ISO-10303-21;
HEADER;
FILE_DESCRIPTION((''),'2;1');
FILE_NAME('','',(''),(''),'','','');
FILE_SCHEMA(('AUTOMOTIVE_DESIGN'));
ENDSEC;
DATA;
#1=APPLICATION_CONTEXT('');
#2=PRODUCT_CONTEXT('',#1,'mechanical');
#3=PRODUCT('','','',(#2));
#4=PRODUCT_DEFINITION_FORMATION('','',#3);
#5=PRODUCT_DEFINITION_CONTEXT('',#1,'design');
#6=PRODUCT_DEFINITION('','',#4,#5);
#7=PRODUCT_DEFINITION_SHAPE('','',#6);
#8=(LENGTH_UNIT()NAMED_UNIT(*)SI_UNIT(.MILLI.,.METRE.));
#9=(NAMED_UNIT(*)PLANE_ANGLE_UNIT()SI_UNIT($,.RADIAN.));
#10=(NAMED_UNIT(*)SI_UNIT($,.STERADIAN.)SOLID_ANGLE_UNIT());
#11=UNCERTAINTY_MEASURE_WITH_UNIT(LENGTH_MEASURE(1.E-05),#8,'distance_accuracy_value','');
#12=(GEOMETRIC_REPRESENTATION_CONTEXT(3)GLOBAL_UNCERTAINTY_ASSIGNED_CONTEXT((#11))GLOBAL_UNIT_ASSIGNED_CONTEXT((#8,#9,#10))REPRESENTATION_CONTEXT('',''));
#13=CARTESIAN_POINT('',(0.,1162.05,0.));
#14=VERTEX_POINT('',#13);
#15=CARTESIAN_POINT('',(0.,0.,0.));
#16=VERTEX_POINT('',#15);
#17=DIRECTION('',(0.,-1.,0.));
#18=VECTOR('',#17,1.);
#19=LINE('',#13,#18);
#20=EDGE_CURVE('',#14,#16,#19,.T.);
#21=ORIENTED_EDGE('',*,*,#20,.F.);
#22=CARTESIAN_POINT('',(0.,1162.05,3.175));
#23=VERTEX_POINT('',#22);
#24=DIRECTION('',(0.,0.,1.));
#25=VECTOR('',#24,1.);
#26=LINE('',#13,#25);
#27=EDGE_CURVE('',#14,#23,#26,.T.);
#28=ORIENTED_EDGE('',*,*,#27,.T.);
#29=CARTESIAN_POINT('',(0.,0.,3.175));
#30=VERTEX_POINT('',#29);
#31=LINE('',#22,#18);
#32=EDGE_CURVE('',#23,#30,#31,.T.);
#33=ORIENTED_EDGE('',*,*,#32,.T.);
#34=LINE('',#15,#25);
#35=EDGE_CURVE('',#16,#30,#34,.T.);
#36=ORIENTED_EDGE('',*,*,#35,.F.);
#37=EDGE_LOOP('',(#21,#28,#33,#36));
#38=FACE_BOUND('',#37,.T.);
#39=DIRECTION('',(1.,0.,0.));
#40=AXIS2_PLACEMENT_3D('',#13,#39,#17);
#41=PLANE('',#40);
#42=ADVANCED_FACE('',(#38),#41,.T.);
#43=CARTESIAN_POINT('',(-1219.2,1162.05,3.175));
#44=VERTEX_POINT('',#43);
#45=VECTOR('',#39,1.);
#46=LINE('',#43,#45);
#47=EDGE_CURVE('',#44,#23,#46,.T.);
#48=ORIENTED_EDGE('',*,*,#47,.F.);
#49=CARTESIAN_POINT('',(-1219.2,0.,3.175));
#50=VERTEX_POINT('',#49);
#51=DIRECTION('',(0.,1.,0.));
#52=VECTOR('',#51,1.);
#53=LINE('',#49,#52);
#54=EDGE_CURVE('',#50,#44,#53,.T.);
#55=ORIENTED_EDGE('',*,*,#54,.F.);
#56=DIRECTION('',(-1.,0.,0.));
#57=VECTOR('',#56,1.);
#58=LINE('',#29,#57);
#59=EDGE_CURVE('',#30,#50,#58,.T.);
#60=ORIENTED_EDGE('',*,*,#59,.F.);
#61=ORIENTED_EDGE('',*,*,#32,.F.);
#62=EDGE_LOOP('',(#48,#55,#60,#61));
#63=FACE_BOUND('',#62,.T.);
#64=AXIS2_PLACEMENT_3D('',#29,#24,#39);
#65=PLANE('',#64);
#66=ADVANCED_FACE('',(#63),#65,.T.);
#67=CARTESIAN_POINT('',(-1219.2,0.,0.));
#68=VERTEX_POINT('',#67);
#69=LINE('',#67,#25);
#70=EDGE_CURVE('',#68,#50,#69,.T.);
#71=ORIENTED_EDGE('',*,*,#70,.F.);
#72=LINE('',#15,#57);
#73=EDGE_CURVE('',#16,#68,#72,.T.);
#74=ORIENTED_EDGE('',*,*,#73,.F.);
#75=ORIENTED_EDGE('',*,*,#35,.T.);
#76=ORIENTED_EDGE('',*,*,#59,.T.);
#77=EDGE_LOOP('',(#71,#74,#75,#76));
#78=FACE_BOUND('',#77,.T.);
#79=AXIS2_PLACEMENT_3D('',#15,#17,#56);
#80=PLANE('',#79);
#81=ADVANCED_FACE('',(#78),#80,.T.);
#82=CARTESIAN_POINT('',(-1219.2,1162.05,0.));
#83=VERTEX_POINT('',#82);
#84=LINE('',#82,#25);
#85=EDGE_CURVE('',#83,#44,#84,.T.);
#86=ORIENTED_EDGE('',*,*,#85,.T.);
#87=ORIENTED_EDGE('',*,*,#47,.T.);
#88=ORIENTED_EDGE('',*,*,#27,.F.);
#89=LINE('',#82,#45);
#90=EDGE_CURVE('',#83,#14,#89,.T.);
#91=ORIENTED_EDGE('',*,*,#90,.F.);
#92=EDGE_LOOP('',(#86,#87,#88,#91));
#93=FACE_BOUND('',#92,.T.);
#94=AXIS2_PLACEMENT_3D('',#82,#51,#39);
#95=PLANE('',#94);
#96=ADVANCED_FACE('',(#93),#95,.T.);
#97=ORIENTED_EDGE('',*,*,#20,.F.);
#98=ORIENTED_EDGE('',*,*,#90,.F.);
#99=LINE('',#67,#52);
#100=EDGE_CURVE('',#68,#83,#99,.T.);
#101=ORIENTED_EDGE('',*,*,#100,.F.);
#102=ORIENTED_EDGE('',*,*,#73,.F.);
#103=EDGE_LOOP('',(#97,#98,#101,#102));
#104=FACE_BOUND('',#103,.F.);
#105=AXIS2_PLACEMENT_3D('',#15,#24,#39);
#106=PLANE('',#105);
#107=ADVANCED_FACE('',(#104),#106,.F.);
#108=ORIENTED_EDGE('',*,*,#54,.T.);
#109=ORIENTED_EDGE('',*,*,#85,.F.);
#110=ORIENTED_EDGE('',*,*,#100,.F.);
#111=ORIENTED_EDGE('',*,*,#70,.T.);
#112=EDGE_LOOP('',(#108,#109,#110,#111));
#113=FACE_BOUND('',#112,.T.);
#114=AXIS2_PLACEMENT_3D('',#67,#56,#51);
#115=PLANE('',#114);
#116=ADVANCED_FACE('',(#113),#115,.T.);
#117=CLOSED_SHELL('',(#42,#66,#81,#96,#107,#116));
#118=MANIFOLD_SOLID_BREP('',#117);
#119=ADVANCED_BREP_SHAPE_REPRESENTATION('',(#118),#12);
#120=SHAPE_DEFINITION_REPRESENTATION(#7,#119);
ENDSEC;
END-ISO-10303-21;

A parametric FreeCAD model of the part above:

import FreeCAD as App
import Part
import Sketcher

V = App.Vector
Q = App.Units.Quantity

doc = App.newDocument("Part")
body = doc.addObject("PartDesign::Body", "Body")

sketch1 = body.newObject("Sketcher::SketchObject", "Sketch")
sketch1.AttachmentSupport = (doc.getObject("XY_Plane"), [""])
sketch1.MapMode = "FlatFace"
sketch1.addGeometry([
    Part.LineSegment(V(-1219, 0, 0), V(0, 0, 0)),
    Part.LineSegment(V(0, 0, 0), V(0, 1162, 0)),
    Part.LineSegment(V(0, 1162, 0), V(-1219, 1162, 0)),
    Part.LineSegment(V(-1219, 1162, 0), V(-1219, 0, 0)),
], False)
sketch1.addConstraint([
    Sketcher.Constraint("Coincident", 0, 2, 1, 1),
    Sketcher.Constraint("Coincident", 1, 2, 2, 1),
    Sketcher.Constraint("Coincident", 2, 2, 3, 1),
    Sketcher.Constraint("Coincident", 3, 2, 0, 1),
    Sketcher.Constraint("Horizontal", 0),
    Sketcher.Constraint("Vertical", 1),
    Sketcher.Constraint("Horizontal", 2),
    Sketcher.Constraint("Vertical", 3),
    Sketcher.Constraint("Coincident", 0, 2, -1, 1),
    Sketcher.Constraint("DistanceX", 0, 1, 0, 2, Q("48 in")),
    Sketcher.Constraint("DistanceY", 1, 1, 1, 2, Q("45.75 in")),
])
pad1 = body.newObject("PartDesign::Pad", "Pad")
pad1.Profile = sketch1
pad1.Length = Q("0.125 in")

doc.recompute()
